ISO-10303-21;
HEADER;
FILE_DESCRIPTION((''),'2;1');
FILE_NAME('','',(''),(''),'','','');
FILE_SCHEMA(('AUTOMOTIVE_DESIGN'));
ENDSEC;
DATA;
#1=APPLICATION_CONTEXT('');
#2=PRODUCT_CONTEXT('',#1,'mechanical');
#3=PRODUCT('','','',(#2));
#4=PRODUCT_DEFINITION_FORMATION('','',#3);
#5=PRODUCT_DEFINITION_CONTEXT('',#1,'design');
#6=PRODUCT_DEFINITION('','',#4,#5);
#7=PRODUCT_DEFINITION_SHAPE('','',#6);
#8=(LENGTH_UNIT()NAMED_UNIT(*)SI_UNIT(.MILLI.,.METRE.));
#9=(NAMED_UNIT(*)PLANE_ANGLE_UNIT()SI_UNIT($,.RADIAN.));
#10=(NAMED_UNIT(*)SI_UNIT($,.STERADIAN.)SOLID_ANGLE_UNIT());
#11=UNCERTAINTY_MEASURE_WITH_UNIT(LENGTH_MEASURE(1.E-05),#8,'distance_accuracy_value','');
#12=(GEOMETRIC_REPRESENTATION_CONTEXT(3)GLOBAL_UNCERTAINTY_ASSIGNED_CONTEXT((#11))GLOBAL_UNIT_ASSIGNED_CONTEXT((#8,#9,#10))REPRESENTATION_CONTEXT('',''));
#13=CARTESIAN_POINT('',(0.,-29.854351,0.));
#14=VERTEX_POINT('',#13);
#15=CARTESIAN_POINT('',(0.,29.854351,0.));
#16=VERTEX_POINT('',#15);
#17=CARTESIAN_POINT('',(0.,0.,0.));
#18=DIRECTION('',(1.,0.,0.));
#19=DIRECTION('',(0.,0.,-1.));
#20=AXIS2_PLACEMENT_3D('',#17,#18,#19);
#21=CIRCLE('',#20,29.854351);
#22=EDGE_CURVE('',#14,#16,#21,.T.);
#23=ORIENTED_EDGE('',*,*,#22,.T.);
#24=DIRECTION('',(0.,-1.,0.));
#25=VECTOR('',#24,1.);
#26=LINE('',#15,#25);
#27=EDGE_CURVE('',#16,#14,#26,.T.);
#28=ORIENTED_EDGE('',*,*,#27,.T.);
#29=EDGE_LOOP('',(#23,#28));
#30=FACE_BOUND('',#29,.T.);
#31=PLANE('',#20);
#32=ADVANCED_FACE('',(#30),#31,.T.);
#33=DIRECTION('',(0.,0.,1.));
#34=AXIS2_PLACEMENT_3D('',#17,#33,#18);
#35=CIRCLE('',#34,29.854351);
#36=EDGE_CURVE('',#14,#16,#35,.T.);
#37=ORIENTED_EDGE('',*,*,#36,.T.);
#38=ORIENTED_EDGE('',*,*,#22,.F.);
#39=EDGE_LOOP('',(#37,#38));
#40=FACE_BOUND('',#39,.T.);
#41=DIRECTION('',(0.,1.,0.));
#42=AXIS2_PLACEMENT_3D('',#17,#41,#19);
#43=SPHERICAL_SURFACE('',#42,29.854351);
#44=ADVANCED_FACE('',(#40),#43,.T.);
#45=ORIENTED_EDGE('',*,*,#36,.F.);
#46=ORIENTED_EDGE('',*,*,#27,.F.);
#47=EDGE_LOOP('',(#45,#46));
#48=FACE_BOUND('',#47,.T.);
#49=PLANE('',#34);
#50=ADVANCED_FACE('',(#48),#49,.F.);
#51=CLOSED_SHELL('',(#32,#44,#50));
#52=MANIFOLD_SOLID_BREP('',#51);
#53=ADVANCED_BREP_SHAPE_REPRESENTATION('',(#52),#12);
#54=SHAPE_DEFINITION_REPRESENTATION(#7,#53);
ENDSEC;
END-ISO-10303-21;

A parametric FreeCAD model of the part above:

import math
import FreeCAD as App
import Part
import Sketcher
from FreeCAD import Vector
Q = App.Units.Quantity

doc = App.newDocument("Part")
body = doc.addObject("PartDesign::Body", "Body")

# Sketch on XY plane
sketch1 = body.newObject("Sketcher::SketchObject", "Sketch")
sketch1.AttachmentSupport = (doc.getObject("XY_Plane"), [""])
sketch1.MapMode = "FlatFace"
sketch1.addGeometry([
    Part.LineSegment(Vector(0, 30, 0), Vector(0, -30, 0)),
    Part.ArcOfCircle(Part.Circle(Vector(0, 0, 0), Vector(0, 0, 1), 30), math.radians(-90), math.radians(90)),
], False)
sketch1.addConstraint([
    Sketcher.Constraint("Coincident", 0, 1, 1, 2),
    Sketcher.Constraint("Coincident", 1, 1, 0, 2),
    Sketcher.Constraint("Vertical", 0),
    Sketcher.Constraint("Coincident", 1, 3, -1, 1),
    Sketcher.Constraint("PointOnObject", 0, 1, -2),
    Sketcher.Constraint("Radius", 1, Q("29.854351 mm")),
])
revolution = body.newObject("PartDesign::Revolution", "Revolution")
revolution.Profile = sketch1
revolution.ReferenceAxis = (sketch1, ["V_Axis"])
revolution.Angle = 270
revolution.Reversed = True

doc.recompute()
